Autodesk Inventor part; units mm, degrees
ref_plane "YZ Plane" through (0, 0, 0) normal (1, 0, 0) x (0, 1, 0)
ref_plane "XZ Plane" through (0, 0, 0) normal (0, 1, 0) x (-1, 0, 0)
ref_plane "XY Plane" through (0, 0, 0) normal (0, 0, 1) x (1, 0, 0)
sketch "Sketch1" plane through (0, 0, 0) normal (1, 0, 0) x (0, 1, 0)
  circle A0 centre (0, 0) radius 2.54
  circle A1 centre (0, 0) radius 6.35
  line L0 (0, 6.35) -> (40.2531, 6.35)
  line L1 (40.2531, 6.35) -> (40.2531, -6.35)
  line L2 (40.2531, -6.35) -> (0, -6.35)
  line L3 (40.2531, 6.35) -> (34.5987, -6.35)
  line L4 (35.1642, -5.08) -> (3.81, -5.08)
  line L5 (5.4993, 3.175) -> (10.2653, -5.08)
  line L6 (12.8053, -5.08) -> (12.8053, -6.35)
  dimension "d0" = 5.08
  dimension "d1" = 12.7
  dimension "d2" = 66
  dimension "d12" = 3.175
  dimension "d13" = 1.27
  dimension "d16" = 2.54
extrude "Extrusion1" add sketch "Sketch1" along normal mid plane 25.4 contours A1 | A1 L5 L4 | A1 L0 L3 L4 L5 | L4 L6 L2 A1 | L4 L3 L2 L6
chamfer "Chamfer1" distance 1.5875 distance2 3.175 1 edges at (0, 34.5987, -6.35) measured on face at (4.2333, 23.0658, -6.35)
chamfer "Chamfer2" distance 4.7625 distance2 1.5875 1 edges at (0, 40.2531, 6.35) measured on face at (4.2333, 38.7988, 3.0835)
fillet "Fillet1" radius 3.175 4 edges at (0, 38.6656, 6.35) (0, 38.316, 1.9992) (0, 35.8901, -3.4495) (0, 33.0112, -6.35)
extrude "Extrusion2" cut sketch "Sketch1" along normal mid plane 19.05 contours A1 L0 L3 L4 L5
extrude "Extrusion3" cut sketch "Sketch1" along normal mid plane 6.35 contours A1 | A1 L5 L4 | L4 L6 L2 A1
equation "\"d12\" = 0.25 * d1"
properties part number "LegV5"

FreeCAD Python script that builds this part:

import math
import FreeCAD as App
import Part
import Sketcher

V = App.Vector
Q = App.Units.Quantity


def edges_at(feature, points):
    """Names of the edges that pass closest to the given points."""
    edges = feature.Shape.Edges
    near = lambda p: min(range(len(edges)), key=lambda i: edges[i].distToShape(Part.Vertex(*p))[0])
    return sorted({f"Edge{near(p) + 1}" for p in points})

doc = App.newDocument("Part")
body = doc.addObject("PartDesign::Body", "Body")

sketch1 = body.newObject("Sketcher::SketchObject", "Sketch")
sketch1.AttachmentSupport = (doc.getObject("YZ_Plane"), [""])
sketch1.MapMode = "FlatFace"
sketch1.addGeometry([
    Part.ArcOfCircle(Part.Circle(V(0, 0, 0), V(0, 0, 1), 6.3), math.radians(90), math.radians(270)),
    Part.LineSegment(V(0, -6.3, 0), V(34.6, -6.3, 0)),
    Part.LineSegment(V(34.6, -6.3, 0), V(40.3, 6.3, 0)),
    Part.LineSegment(V(40.3, 6.3, 0), V(0, 6.3, 0)),
    Part.Circle(V(0, 0, 0), V(0, 0, 1), 2.5),
], False)
sketch1.addConstraint([
    Sketcher.Constraint("Tangent", 0, 2, 1, 1),
    Sketcher.Constraint("Coincident", 1, 2, 2, 1),
    Sketcher.Constraint("Coincident", 2, 2, 3, 1),
    Sketcher.Constraint("Tangent", 3, 2, 0, 1),
    Sketcher.Constraint("Horizontal", 1),
    Sketcher.Constraint("Horizontal", 3),
    Sketcher.Constraint("Coincident", 0, 3, -1, 1),
    Sketcher.Constraint("Coincident", 4, 3, -1, 1),
    Sketcher.Constraint("Diameter", 4, Q("0.2 in")),
    Sketcher.Constraint("Radius", 0, Q("0.25 in")),
    Sketcher.Constraint("Angle", 2, Q("66 deg")),
    Sketcher.Constraint("DistanceX", 1, 1, 1, 2, 34.5987),
])
pad1 = body.newObject("PartDesign::Pad", "Pad")
pad1.Profile = sketch1
pad1.Length = Q("1 in")
pad1.Midplane = True
doc.recompute()

chamfer = body.newObject("PartDesign::Chamfer", "Chamfer")
chamfer.Base = (pad1, edges_at(pad1, [(0, 34.599, -6.35)]))
chamfer.ChamferType = "Two distances"
chamfer.Size = Q("0.0625 in")
chamfer.Size2 = Q("0.125 in")
doc.recompute()

chamfer2 = body.newObject("PartDesign::Chamfer", "Chamfer001")
chamfer2.Base = (chamfer, edges_at(chamfer, [(0, 40.253, 6.35)]))
chamfer2.ChamferType = "Two distances"
chamfer2.Size = Q("0.1875 in")
chamfer2.Size2 = Q("0.0625 in")
doc.recompute()

fillet = body.newObject("PartDesign::Fillet", "Fillet")
fillet.Base = (chamfer2, edges_at(chamfer2, [
    (0, 38.666, 6.35),
    (0, 38.316, 1.999),
    (0, 35.89, -3.45),
    (0, 33.011, -6.35),
]))
fillet.Radius = Q("0.125 in")

sketch2 = body.newObject("Sketcher::SketchObject", "Sketch001")
sketch2.AttachmentSupport = (doc.getObject("YZ_Plane"), [""])
sketch2.MapMode = "FlatFace"
sketch2.addGeometry([
    Part.ArcOfCircle(Part.Circle(V(0, 0, 0), V(0, 0, 1), 6), math.radians(30), math.radians(90)),
    Part.LineSegment(V(5, 3, 0), V(10, -5, 0)),
    Part.LineSegment(V(10, -5, 0), V(35, -5, 0)),
    Part.LineSegment(V(35, -5, 0), V(40, 6, 0)),
    Part.LineSegment(V(40, 6, 0), V(0, 6, 0)),
], False)
sketch2.addConstraint([
    Sketcher.Constraint("Tangent", 0, 1, 1, 1),
    Sketcher.Constraint("Coincident", 1, 2, 2, 1),
    Sketcher.Constraint("Coincident", 2, 2, 3, 1),
    Sketcher.Constraint("Coincident", 3, 2, 4, 1),
    Sketcher.Constraint("Tangent", 4, 2, 0, 2),
    Sketcher.Constraint("Horizontal", 2),
    Sketcher.Constraint("Horizontal", 4),
    Sketcher.Constraint("Coincident", 0, 3, -1, 1),
    Sketcher.Constraint("Radius", 0, Q("0.25 in")),
    Sketcher.Constraint("Angle", 3, Q("66 deg")),
    Sketcher.Constraint("DistanceY", 1, 2, -1, 1, Q("0.2 in")),
    Sketcher.Constraint("DistanceY", -1, 1, 0, 1, Q("0.125 in")),
    Sketcher.Constraint("DistanceX", 2, 1, 2, 2, 24.899),
])
pocket1 = body.newObject("PartDesign::Pocket", "Pocket")
pocket1.Profile = sketch2
pocket1.Length = Q("0.75 in")
pocket1.Midplane = True

sketch3 = body.newObject("Sketcher::SketchObject", "Sketch002")
sketch3.AttachmentSupport = (doc.getObject("YZ_Plane"), [""])
sketch3.MapMode = "FlatFace"
sketch3.addGeometry([
    Part.LineSegment(V(0, -6.3, 0), V(12.8, -6.3, 0)),
    Part.LineSegment(V(12.8, -6.3, 0), V(12.8, -5.1, 0)),
    Part.LineSegment(V(12.8, -5.1, 0), V(10.3, -5.1, 0)),
    Part.LineSegment(V(10.3, -5.1, 0), V(5.5, 3.2, 0)),
    Part.ArcOfCircle(Part.Circle(V(0, 0, 0), V(0, 0, 1), 6.3), math.radians(30), math.radians(270)),
    Part.Circle(V(0, 0, 0), V(0, 0, 1), 2.5),
], False)
sketch3.addConstraint([
    Sketcher.Constraint("Coincident", 0, 2, 1, 1),
    Sketcher.Constraint("Coincident", 1, 2, 2, 1),
    Sketcher.Constraint("Coincident", 2, 2, 3, 1),
    Sketcher.Constraint("Tangent", 3, 2, 4, 1),
    Sketcher.Constraint("Tangent", 4, 2, 0, 1),
    Sketcher.Constraint("Horizontal", 0),
    Sketcher.Constraint("Vertical", 1),
    Sketcher.Constraint("Horizontal", 2),
    Sketcher.Constraint("Coincident", 4, 3, -1, 1),
    Sketcher.Constraint("Coincident", 5, 3, -1, 1),
    Sketcher.Constraint("Diameter", 5, Q("0.2 in")),
    Sketcher.Constraint("Radius", 4, Q("0.25 in")),
    Sketcher.Constraint("DistanceX", 2, 2, 2, 1, Q("0.1 in")),
    Sketcher.Constraint("DistanceY", 1, 1, 1, 2, Q("0.05 in")),
    Sketcher.Constraint("DistanceY", -1, 1, 3, 2, Q("0.125 in")),
])
pocket2 = body.newObject("PartDesign::Pocket", "Pocket001")
pocket2.Profile = sketch3
pocket2.Length = Q("0.25 in")
pocket2.Midplane = True

doc.recompute()
